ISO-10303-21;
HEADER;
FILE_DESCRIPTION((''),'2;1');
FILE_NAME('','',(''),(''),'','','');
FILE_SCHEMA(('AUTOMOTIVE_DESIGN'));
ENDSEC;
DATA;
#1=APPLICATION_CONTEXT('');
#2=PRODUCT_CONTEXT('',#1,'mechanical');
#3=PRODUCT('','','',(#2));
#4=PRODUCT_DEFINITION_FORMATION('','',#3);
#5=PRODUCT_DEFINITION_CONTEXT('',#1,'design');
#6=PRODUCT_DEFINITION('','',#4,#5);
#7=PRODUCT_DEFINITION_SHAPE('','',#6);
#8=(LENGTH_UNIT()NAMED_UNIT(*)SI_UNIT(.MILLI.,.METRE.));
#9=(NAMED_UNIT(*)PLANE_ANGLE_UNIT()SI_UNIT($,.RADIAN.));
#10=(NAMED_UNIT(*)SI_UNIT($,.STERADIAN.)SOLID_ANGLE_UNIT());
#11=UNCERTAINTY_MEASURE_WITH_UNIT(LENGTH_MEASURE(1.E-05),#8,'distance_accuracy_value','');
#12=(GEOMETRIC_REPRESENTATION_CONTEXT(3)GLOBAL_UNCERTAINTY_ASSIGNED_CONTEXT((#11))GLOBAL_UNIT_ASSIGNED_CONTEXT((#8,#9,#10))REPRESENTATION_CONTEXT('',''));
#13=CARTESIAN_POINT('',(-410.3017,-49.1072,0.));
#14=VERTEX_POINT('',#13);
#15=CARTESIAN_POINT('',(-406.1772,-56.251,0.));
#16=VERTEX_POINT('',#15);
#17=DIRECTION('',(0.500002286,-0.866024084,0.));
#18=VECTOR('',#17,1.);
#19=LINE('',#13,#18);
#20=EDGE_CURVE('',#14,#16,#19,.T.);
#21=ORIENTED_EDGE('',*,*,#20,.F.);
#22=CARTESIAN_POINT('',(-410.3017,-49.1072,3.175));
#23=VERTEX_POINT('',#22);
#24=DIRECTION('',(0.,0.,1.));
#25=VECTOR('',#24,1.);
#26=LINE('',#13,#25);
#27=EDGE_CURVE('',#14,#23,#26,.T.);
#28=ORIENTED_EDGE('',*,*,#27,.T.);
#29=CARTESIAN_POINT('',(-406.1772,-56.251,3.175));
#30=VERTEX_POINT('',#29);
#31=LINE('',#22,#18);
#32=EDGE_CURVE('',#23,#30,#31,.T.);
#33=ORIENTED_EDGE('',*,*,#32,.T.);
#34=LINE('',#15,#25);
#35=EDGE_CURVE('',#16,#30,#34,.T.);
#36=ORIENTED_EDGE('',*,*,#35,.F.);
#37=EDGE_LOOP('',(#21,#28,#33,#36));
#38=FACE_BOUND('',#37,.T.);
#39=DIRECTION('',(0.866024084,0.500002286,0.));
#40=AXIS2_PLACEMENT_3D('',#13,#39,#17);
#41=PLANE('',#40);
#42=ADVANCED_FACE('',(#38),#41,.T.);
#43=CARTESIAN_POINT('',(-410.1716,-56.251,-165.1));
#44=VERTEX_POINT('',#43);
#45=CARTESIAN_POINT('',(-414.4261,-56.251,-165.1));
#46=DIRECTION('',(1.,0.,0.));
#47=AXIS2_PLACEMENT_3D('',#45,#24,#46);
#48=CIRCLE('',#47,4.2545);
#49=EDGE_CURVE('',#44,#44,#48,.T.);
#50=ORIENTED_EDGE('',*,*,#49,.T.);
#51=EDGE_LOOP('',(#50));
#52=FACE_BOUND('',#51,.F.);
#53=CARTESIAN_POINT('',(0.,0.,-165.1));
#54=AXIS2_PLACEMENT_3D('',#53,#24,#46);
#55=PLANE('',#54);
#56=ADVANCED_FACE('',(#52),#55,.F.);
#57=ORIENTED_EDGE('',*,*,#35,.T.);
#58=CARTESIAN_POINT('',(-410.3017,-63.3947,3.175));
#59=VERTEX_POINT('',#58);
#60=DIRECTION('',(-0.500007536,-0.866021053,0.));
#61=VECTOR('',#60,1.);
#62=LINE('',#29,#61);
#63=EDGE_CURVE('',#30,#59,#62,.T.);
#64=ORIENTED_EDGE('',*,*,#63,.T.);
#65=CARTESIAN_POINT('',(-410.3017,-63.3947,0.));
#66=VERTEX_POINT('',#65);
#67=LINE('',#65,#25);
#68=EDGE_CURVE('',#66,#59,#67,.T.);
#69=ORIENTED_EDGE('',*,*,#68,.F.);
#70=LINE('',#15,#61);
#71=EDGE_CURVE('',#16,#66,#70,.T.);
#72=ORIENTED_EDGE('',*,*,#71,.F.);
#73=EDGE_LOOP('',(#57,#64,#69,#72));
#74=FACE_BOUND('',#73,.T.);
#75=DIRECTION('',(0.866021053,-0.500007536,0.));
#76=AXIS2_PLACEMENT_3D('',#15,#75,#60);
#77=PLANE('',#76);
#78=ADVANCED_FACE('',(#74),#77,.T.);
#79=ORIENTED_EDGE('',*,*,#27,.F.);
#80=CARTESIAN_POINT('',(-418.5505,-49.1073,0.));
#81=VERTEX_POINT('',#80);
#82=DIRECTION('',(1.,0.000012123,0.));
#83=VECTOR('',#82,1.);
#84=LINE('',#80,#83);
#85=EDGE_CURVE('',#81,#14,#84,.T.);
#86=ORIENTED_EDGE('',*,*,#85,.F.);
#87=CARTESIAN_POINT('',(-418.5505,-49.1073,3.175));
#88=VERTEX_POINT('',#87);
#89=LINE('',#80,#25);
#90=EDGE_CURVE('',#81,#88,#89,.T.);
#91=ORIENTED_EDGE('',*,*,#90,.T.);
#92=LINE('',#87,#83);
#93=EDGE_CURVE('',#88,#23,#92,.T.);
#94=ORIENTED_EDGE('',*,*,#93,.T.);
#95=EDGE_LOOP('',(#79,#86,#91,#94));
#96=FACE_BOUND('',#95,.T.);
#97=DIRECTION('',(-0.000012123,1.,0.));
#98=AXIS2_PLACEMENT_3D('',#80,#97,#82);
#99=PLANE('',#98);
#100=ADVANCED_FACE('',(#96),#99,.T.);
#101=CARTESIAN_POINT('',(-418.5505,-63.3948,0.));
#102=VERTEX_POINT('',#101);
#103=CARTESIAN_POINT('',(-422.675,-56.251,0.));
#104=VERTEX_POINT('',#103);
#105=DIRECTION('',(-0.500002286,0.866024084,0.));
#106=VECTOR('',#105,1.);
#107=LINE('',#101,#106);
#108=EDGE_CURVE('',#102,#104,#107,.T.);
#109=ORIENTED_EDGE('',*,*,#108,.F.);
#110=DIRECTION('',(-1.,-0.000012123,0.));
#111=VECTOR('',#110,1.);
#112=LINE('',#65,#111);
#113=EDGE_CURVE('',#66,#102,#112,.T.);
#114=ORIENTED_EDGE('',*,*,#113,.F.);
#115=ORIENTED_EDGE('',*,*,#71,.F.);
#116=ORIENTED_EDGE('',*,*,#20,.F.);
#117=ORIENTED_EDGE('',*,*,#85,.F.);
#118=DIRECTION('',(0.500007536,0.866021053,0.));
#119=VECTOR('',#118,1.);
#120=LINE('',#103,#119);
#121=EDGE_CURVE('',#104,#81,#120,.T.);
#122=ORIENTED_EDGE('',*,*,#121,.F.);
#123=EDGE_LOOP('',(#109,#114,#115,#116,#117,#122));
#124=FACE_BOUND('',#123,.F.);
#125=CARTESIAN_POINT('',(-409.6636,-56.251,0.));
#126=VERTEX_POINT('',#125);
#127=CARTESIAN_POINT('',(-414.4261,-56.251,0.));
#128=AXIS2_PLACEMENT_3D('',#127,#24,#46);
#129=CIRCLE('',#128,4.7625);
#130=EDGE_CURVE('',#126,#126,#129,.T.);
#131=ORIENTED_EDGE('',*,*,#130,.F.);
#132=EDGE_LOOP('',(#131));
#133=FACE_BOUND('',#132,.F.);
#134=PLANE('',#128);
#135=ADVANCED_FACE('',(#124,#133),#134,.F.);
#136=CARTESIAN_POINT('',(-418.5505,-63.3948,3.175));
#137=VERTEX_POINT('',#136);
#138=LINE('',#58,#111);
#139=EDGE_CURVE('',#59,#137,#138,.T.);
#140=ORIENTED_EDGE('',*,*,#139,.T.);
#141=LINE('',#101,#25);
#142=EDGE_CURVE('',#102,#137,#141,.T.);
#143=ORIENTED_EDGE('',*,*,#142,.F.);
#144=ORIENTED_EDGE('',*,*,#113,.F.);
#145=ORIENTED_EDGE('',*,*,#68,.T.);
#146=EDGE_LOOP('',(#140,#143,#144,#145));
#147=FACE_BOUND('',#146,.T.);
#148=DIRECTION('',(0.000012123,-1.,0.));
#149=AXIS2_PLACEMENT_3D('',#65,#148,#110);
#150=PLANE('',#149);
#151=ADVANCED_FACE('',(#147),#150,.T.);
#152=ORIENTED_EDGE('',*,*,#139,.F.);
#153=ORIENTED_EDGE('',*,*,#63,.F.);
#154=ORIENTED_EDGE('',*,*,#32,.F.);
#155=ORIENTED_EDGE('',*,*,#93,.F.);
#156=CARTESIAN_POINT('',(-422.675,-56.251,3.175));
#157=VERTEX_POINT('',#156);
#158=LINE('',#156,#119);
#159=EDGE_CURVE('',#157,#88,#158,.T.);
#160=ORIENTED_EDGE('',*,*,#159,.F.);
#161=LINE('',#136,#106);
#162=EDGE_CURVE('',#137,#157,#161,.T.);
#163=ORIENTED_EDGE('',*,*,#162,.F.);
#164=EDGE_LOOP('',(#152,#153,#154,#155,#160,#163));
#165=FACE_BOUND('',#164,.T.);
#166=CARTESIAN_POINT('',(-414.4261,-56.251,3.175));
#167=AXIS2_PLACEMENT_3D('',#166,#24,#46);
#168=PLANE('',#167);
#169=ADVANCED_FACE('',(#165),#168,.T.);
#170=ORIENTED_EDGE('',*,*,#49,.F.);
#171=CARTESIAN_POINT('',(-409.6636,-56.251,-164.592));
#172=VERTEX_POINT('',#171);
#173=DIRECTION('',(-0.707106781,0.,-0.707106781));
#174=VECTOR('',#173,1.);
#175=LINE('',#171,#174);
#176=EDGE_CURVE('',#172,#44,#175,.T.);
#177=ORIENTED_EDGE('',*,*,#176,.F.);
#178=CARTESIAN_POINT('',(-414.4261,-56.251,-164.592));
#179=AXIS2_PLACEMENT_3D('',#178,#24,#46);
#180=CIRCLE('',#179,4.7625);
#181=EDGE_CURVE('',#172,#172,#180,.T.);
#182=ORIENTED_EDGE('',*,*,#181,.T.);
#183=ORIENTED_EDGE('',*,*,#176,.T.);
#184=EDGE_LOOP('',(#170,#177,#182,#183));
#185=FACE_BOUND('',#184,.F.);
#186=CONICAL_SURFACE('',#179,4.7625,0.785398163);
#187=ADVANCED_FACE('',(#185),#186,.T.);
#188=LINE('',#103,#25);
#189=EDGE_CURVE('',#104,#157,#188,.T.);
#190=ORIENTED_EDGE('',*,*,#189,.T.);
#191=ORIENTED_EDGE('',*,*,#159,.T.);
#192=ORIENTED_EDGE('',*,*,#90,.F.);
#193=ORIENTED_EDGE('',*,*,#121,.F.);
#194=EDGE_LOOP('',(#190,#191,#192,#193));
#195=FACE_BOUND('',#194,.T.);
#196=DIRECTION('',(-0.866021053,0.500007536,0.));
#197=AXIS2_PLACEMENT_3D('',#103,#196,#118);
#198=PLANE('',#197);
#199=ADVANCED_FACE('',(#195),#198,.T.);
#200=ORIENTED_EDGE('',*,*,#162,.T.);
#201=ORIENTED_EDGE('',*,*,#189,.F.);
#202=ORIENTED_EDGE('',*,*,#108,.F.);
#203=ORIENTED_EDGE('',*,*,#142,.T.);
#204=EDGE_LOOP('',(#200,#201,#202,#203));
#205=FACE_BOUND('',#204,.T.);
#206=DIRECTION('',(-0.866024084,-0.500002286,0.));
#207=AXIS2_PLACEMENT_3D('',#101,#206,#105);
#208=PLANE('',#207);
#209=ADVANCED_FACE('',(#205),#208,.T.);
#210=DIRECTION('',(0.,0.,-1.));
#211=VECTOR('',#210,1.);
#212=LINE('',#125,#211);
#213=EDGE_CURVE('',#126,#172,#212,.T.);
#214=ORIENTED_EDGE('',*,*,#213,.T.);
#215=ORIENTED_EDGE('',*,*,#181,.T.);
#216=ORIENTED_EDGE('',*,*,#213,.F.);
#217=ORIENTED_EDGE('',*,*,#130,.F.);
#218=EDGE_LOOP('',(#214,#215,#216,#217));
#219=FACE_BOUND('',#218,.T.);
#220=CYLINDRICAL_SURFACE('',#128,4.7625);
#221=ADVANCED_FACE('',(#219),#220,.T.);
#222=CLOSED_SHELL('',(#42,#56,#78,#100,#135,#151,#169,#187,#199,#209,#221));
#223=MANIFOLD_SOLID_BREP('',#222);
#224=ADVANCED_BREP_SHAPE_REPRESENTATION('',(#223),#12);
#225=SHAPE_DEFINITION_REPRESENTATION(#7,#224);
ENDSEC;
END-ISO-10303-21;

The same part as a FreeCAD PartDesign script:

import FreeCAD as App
import Part
import Sketcher
Q = App.Units.Quantity


def edges_at(feature, points):
    """Names of the edges that pass closest to the given points."""
    edges = feature.Shape.Edges
    near = lambda p: min(range(len(edges)), key=lambda i: edges[i].distToShape(Part.Vertex(*p))[0])
    return sorted({f"Edge{near(p) + 1}" for p in points})


def add_polygon(sketch, points):
    """Adds a closed chain of lines whose ends are joined by coincident constraints."""
    first, n = sketch.GeometryCount, len(points)
    for a, b in zip(points, points[1:] + points[:1]):
        sketch.addGeometry(Part.LineSegment(App.Vector(*a, 0), App.Vector(*b, 0)), False)
    for i in range(n):
        sketch.addConstraint(Sketcher.Constraint("Coincident", first + i, 2, first + (i + 1) % n, 1))

doc = App.newDocument("Part")
body = doc.addObject("PartDesign::Body", "Body")

sketch1 = body.newObject("Sketcher::SketchObject", "Sketch")
sketch1.AttachmentSupport = (doc.getObject("XY_Plane"), [""])
sketch1.MapMode = "FlatFace"
sketch1.addGeometry(Part.Circle(App.Vector(-414.4261, -56.251, 0), App.Vector(0, 0, 1), 4.7625), False)
sketch1.addConstraint(Sketcher.Constraint("Diameter", 0, Q("0.375 in")))
sketch1.addConstraint(Sketcher.Constraint("DistanceX", 0, 3, -1, 1, Q("16.316 in")))
sketch1.addConstraint(Sketcher.Constraint("DistanceY", 0, 3, -1, 1, Q("2.2146 in")))
pad1 = body.newObject("PartDesign::Pad", "Pad")
pad1.Profile = sketch1
pad1.Length = Q("6.5 in")
pad1.Reversed = True

sketch2 = body.newObject("Sketcher::SketchObject", "Sketch001")
sketch2.AttachmentSupport = (doc.getObject("XY_Plane"), [""])
sketch2.MapMode = "FlatFace"
add_polygon(sketch2, [(-418.5505, -49.1073), (-422.675, -56.251), (-418.5505, -63.3948), (-410.3017, -63.3947), (-406.1772, -56.251), (-410.3017, -49.1072)])
sketch2.addConstraint(Sketcher.Constraint("Horizontal", 2))
sketch2.addConstraint(Sketcher.Constraint("Horizontal", 5))
sketch2.addConstraint(Sketcher.Constraint("Parallel", 0, 3))
sketch2.addConstraint(Sketcher.Constraint("Parallel", 1, 4))
sketch2.addConstraint(Sketcher.Constraint("Horizontal", 0, 2, 3, 2))
sketch2.addConstraint(Sketcher.Constraint("Vertical", 2, 2, 4, 2))
sketch2.addConstraint(Sketcher.Constraint("Vertical", 1, 2, 5, 2))
sketch2.addConstraint(Sketcher.Constraint("Angle", 0, Q("-120.0005 deg")))
sketch2.addConstraint(Sketcher.Constraint("DistanceY", 2, 2, 4, 2, Q("0.5625 in")))
sketch2.addConstraint(Sketcher.Constraint("DistanceX", 2, 1, 2, 2, Q("8.2488 mm")))
sketch2.addConstraint(Sketcher.Constraint("DistanceY", 0, 2, -1, 1, Q("2.2146 in")))
sketch2.addConstraint(Sketcher.Constraint("DistanceX", 2, 2, -1, 1, Q("16.1536 in")))
pad2 = body.newObject("PartDesign::Pad", "Pad001")
pad2.Profile = sketch2
pad2.Length = Q("0.125 in")
doc.recompute()

chamfer = body.newObject("PartDesign::Chamfer", "Chamfer")
chamfer.Base = (pad2, edges_at(pad2, [(-419.189, -56.251, -165.1)]))
chamfer.Size = Q("0.02 in")

doc.recompute()
